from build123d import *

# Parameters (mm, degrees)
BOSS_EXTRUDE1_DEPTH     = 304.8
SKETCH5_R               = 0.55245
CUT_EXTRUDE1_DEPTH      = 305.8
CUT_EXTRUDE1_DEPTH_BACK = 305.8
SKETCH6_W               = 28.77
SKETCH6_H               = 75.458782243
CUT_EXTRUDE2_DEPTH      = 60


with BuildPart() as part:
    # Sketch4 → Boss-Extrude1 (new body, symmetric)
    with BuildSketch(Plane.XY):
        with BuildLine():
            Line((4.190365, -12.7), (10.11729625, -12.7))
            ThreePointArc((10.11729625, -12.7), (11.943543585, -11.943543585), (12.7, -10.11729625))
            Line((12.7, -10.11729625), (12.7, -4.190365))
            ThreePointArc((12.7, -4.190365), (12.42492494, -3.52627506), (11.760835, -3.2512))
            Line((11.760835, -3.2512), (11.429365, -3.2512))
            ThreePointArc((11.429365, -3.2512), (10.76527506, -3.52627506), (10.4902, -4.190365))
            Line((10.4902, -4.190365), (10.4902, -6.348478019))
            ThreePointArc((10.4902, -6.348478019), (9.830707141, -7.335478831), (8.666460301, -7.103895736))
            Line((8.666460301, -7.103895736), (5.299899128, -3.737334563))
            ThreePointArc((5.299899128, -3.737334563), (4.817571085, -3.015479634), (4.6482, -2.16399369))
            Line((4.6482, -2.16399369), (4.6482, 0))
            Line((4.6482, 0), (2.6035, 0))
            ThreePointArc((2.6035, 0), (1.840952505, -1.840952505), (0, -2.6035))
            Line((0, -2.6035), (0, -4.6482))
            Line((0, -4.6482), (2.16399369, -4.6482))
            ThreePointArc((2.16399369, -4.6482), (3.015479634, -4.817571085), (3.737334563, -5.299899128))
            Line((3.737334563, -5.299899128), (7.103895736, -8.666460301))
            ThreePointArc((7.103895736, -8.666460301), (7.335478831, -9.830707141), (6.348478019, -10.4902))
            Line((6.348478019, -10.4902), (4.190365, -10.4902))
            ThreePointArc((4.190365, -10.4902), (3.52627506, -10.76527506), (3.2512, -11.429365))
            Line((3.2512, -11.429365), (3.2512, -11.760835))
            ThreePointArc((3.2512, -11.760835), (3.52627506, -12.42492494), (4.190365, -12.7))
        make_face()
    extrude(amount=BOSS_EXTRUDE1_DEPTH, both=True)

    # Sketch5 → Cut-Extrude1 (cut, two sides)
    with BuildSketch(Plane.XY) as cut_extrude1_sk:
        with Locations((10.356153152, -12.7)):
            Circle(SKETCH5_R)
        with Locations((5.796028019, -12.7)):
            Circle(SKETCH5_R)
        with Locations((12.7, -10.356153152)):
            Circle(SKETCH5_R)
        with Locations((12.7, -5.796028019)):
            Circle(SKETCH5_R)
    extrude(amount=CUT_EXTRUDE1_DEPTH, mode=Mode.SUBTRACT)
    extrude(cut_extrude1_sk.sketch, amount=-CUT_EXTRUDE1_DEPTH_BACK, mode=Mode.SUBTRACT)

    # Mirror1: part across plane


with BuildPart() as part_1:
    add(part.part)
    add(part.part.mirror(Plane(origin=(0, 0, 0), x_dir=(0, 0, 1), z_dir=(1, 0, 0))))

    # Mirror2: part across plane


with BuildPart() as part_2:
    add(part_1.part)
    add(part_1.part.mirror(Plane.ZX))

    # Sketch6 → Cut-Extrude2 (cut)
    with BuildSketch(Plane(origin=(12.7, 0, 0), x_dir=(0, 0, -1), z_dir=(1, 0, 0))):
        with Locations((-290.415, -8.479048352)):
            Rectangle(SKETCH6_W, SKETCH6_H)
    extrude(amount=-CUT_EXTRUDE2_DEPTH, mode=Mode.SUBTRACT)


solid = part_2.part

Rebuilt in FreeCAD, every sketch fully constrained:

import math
import FreeCAD as App
import Part
import Sketcher

V = App.Vector
Q = App.Units.Quantity

doc = App.newDocument("Part")
body = doc.addObject("PartDesign::Body", "Body")

# Sketch on XY plane
sketch1 = body.newObject("Sketcher::SketchObject", "Sketch")
sketch1.AttachmentSupport = (doc.getObject("XY_Plane"), [""])
sketch1.MapMode = "FlatFace"
sketch1.addGeometry(Part.LineSegment(V(4.190365, -12.7, 0), V(10.117296, -12.7, 0)), False)
sketch1.addGeometry(Part.ArcOfCircle(Part.Circle(V(10.117296, -10.117296, 0), V(0, 0, 1), 2.582704), math.radians(-90), math.radians(0)), False)
sketch1.addGeometry(Part.LineSegment(V(12.7, -10.117296, 0), V(12.7, -4.190365, 0)), False)
sketch1.addGeometry(Part.ArcOfCircle(Part.Circle(V(11.760835, -4.190365, 0), V(0, 0, 1), 0.939165), math.radians(0), math.radians(90)), False)
sketch1.addGeometry(Part.LineSegment(V(11.760835, -3.2512, 0), V(11.429365, -3.2512, 0)), False)
sketch1.addGeometry(Part.ArcOfCircle(Part.Circle(V(11.429365, -4.190365, 0), V(0, 0, 1), 0.939165), math.radians(90), math.radians(180)), False)
sketch1.addGeometry(Part.LineSegment(V(10.4902, -4.190365, 0), V(10.4902, -6.348478, 0)), False)
sketch1.addGeometry(Part.ArcOfCircle(Part.Circle(V(9.421878, -6.348478, 0), V(0, 0, 1), 1.068322), math.radians(-135), math.radians(0)), False)
sketch1.addGeometry(Part.LineSegment(V(8.66646, -7.103896, 0), V(5.299899, -3.737335, 0)), False)
sketch1.addGeometry(Part.ArcOfCircle(Part.Circle(V(6.87324, -2.163994, 0), V(0, 0, 1), 2.22504), math.radians(-180), math.radians(-135)), False)
sketch1.addGeometry(Part.LineSegment(V(4.6482, -2.163994, 0), V(4.6482, 0, 0)), False)
sketch1.addGeometry(Part.LineSegment(V(4.6482, 0, 0), V(2.6035, 0, 0)), False)
sketch1.addGeometry(Part.ArcOfCircle(Part.Circle(V(0, 0, 0), V(0, 0, 1), 2.6035), math.radians(-90), math.radians(0)), False)
sketch1.addGeometry(Part.LineSegment(V(0, -2.6035, 0), V(0, -4.6482, 0)), False)
sketch1.addGeometry(Part.LineSegment(V(0, -4.6482, 0), V(2.163994, -4.6482, 0)), False)
sketch1.addGeometry(Part.ArcOfCircle(Part.Circle(V(2.163994, -6.87324, 0), V(0, 0, 1), 2.22504), math.radians(45), math.radians(90)), False)
sketch1.addGeometry(Part.LineSegment(V(3.737335, -5.299899, 0), V(7.103896, -8.66646, 0)), False)
sketch1.addGeometry(Part.ArcOfCircle(Part.Circle(V(6.348478, -9.421878, 0), V(0, 0, 1), 1.068322), math.radians(-90), math.radians(45)), False)
sketch1.addGeometry(Part.LineSegment(V(6.348478, -10.4902, 0), V(4.190365, -10.4902, 0)), False)
sketch1.addGeometry(Part.ArcOfCircle(Part.Circle(V(4.190365, -11.429365, 0), V(0, 0, 1), 0.939165), math.radians(90), math.radians(180)), False)
sketch1.addGeometry(Part.LineSegment(V(3.2512, -11.429365, 0), V(3.2512, -11.760835, 0)), False)
sketch1.addGeometry(Part.ArcOfCircle(Part.Circle(V(4.190365, -11.760835, 0), V(0, 0, 1), 0.939165), math.radians(-180), math.radians(-90)), False)
sketch1.addConstraint(Sketcher.Constraint("Tangent", 0, 2, 1, 1))
sketch1.addConstraint(Sketcher.Constraint("Tangent", 1, 2, 2, 1))
sketch1.addConstraint(Sketcher.Constraint("Tangent", 2, 2, 3, 1))
sketch1.addConstraint(Sketcher.Constraint("Tangent", 3, 2, 4, 1))
sketch1.addConstraint(Sketcher.Constraint("Tangent", 4, 2, 5, 1))
sketch1.addConstraint(Sketcher.Constraint("Tangent", 5, 2, 6, 1))
sketch1.addConstraint(Sketcher.Constraint("Tangent", 6, 2, 7, 2))
sketch1.addConstraint(Sketcher.Constraint("Tangent", 7, 1, 8, 1))
sketch1.addConstraint(Sketcher.Constraint("Tangent", 8, 2, 9, 2))
sketch1.addConstraint(Sketcher.Constraint("Tangent", 9, 1, 10, 1))
sketch1.addConstraint(Sketcher.Constraint("Coincident", 10, 2, 11, 1))
sketch1.addConstraint(Sketcher.Constraint("Coincident", 11, 2, 12, 2))
sketch1.addConstraint(Sketcher.Constraint("Coincident", 12, 1, 13, 1))
sketch1.addConstraint(Sketcher.Constraint("Coincident", 13, 2, 14, 1))
sketch1.addConstraint(Sketcher.Constraint("Tangent", 14, 2, 15, 2))
sketch1.addConstraint(Sketcher.Constraint("Tangent", 15, 1, 16, 1))
sketch1.addConstraint(Sketcher.Constraint("Tangent", 16, 2, 17, 2))
sketch1.addConstraint(Sketcher.Constraint("Tangent", 17, 1, 18, 1))
sketch1.addConstraint(Sketcher.Constraint("Tangent", 18, 2, 19, 1))
sketch1.addConstraint(Sketcher.Constraint("Tangent", 19, 2, 20, 1))
sketch1.addConstraint(Sketcher.Constraint("Tangent", 20, 2, 21, 1))
sketch1.addConstraint(Sketcher.Constraint("Tangent", 21, 2, 0, 1))
sketch1.addConstraint(Sketcher.Constraint("Horizontal", 0))
sketch1.addConstraint(Sketcher.Constraint("Vertical", 2))
sketch1.addConstraint(Sketcher.Constraint("Horizontal", 4))
sketch1.addConstraint(Sketcher.Constraint("Vertical", 6))
sketch1.addConstraint(Sketcher.Constraint("Vertical", 10))
sketch1.addConstraint(Sketcher.Constraint("Horizontal", 11))
sketch1.addConstraint(Sketcher.Constraint("Vertical", 13))
sketch1.addConstraint(Sketcher.Constraint("Horizontal", 14))
sketch1.addConstraint(Sketcher.Constraint("Horizontal", 18))
sketch1.addConstraint(Sketcher.Constraint("Vertical", 20))
sketch1.addConstraint(Sketcher.Constraint("Coincident", 12, 3, -1, 1))
sketch1.addConstraint(Sketcher.Constraint("Equal", 3, 5))
sketch1.addConstraint(Sketcher.Constraint("Equal", 9, 15))
sketch1.addConstraint(Sketcher.Constraint("Equal", 7, 17))
sketch1.addConstraint(Sketcher.Constraint("Equal", 5, 19))
sketch1.addConstraint(Sketcher.Constraint("Equal", 19, 21))
sketch1.addConstraint(Sketcher.Constraint("PointOnObject", 10, 2, -1))
sketch1.addConstraint(Sketcher.Constraint("PointOnObject", 12, 1, -2))
sketch1.addConstraint(Sketcher.Constraint("Parallel", 8, 16))
sketch1.addConstraint(Sketcher.Constraint("Equal", 0, 2))
sketch1.addConstraint(Sketcher.Constraint("Equal", 18, 6))
sketch1.addConstraint(Sketcher.Constraint("Equal", 14, 10))
sketch1.addConstraint(Sketcher.Constraint("Equal", 11, 13))
sketch1.addConstraint(Sketcher.Constraint("Equal", 4, 20))
sketch1.addConstraint(Sketcher.Constraint("Equal", 8, 16))
sketch1.addConstraint(Sketcher.Constraint("DistanceY", 0, 2, -1, 1, Q("12.7 mm")))
sketch1.addConstraint(Sketcher.Constraint("Radius", 12, Q("2.6035 mm")))
sketch1.addConstraint(Sketcher.Constraint("Radius", 7, Q("1.068322 mm")))
sketch1.addConstraint(Sketcher.Constraint("Radius", 9, Q("2.22504 mm")))
sketch1.addConstraint(Sketcher.Constraint("DistanceX", 11, 2, 11, 1, Q("2.0447 mm")))
sketch1.addConstraint(Sketcher.Constraint("Radius", 1, Q("2.582704 mm")))
sketch1.addConstraint(Sketcher.Constraint("Radius", 3, Q("0.939165 mm")))
sketch1.addConstraint(Sketcher.Constraint("DistanceX", 9, 1, 5, 2, Q("5.842 mm")))
sketch1.addConstraint(Sketcher.Constraint("DistanceX", 0, 1, 0, 2, Q("5.926931 mm")))
sketch1.addConstraint(Sketcher.Constraint("DistanceX", 17, 3, 7, 3, Q("3.0734 mm")))
pad1 = body.newObject("PartDesign::Pad", "Pad")
pad1.Profile = sketch1
pad1.Length = 609.6
pad1.Midplane = True

# Sketch on XY plane
sketch2 = body.newObject("Sketcher::SketchObject", "Sketch001")
sketch2.AttachmentSupport = (doc.getObject("XY_Plane"), [""])
sketch2.MapMode = "FlatFace"
sketch2.addGeometry(Part.Circle(V(10.356153, -12.7, 0), V(0, 0, 1), 0.55245), False)
sketch2.addGeometry(Part.Circle(V(5.796028, -12.7, 0), V(0, 0, 1), 0.55245), False)
sketch2.addGeometry(Part.Circle(V(12.7, -10.356153, 0), V(0, 0, 1), 0.55245), False)
sketch2.addGeometry(Part.Circle(V(12.7, -5.796028, 0), V(0, 0, 1), 0.55245), False)
sketch2.addConstraint(Sketcher.Constraint("Equal", 0, 1))
sketch2.addConstraint(Sketcher.Constraint("Equal", 1, 2))
sketch2.addConstraint(Sketcher.Constraint("Equal", 2, 3))
sketch2.addConstraint(Sketcher.Constraint("Horizontal", 0, 3, 1, 3))
sketch2.addConstraint(Sketcher.Constraint("Vertical", 2, 3, 3, 3))
sketch2.addConstraint(Sketcher.Constraint("Diameter", 0, Q("1.1049 mm")))
sketch2.addConstraint(Sketcher.Constraint("DistanceY", 0, 3, -1, 1, Q("12.7 mm")))
sketch2.addConstraint(Sketcher.Constraint("DistanceX", -1, 1, 2, 3, Q("12.7 mm")))
sketch2.addConstraint(Sketcher.Constraint("DistanceX", -1, 1, 1, 3, Q("5.796028 mm")))
sketch2.addConstraint(Sketcher.Constraint("DistanceY", 3, 3, -1, 1, Q("5.796028 mm")))
sketch2.addConstraint(Sketcher.Constraint("DistanceX", -1, 1, 0, 3, Q("10.356153 mm")))
sketch2.addConstraint(Sketcher.Constraint("DistanceY", 2, 3, -1, 1, Q("10.356153 mm")))
pocket1 = body.newObject("PartDesign::Pocket", "Pocket")
pocket1.Profile = sketch2
pocket1.Type = "ThroughAll"
pocket1.Midplane = True
body2 = doc.addObject("PartDesign::Body", "Body001")
doc.recompute()

body2.BaseFeature = body
doc.recompute()

mirroring = doc.addObject("Part::Mirroring", "Mirroring")
mirroring.Source = body
mirroring.Base = V(0, 0, 0)
mirroring.Normal = V(1, 0, 0)
body3 = doc.addObject("PartDesign::Body", "Body002")
body3.BaseFeature = mirroring
boolean = body2.newObject("PartDesign::Boolean", "Boolean")
boolean.Type = "Fuse"
boolean.addObjects([body3])
doc.recompute()
body4 = doc.addObject("PartDesign::Body", "Body003")
doc.recompute()

body4.BaseFeature = body2
doc.recompute()

mirroring2 = doc.addObject("Part::Mirroring", "Mirroring001")
mirroring2.Source = body2
mirroring2.Base = V(0, 0, 0)
mirroring2.Normal = V(0, 1, 0)
body5 = doc.addObject("PartDesign::Body", "Body004")
body5.BaseFeature = mirroring2
boolean2 = body4.newObject("PartDesign::Boolean", "Boolean001")
boolean2.Type = "Fuse"
boolean2.addObjects([body5])
doc.recompute()

# Sketch on YZ plane
sketch3 = body4.newObject("Sketcher::SketchObject", "Sketch002")
sketch3.AttachmentSupport = (doc.getObject("YZ_Plane003"), [""])
sketch3.MapMode = "FlatFace"
sketch3.AttachmentOffset = App.Placement(V(0, 0, 12.7), App.Rotation())
sketch3.addGeometry(Part.LineSegment(V(29.250343, 304.8, 0), V(-46.208439, 304.8, 0)), False)
sketch3.addGeometry(Part.LineSegment(V(-46.208439, 304.8, 0), V(-46.208439, 276.03, 0)), False)
sketch3.addGeometry(Part.LineSegment(V(-46.208439, 276.03, 0), V(29.250343, 276.03, 0)), False)
sketch3.addGeometry(Part.LineSegment(V(29.250343, 276.03, 0), V(29.250343, 304.8, 0)), False)
sketch3.addConstraint(Sketcher.Constraint("Coincident", 0, 2, 1, 1))
sketch3.addConstraint(Sketcher.Constraint("Coincident", 1, 2, 2, 1))
sketch3.addConstraint(Sketcher.Constraint("Coincident", 2, 2, 3, 1))
sketch3.addConstraint(Sketcher.Constraint("Coincident", 3, 2, 0, 1))
sketch3.addConstraint(Sketcher.Constraint("Horizontal", 0))
sketch3.addConstraint(Sketcher.Constraint("Vertical", 1))
sketch3.addConstraint(Sketcher.Constraint("Horizontal", 2))
sketch3.addConstraint(Sketcher.Constraint("Vertical", 3))
sketch3.addConstraint(Sketcher.Constraint("DistanceY", 1, 2, 1, 1, Q("28.77 mm")))
sketch3.addConstraint(Sketcher.Constraint("DistanceY", -1, 1, 0, 2, Q("304.8 mm")))
sketch3.addConstraint(Sketcher.Constraint("DistanceX", 0, 2, 0, 1, Q("75.458782 mm")))
sketch3.addConstraint(Sketcher.Constraint("DistanceX", 0, 2, -1, 1, Q("46.208439 mm")))
pocket2 = body4.newObject("PartDesign::Pocket", "Pocket001")
pocket2.Profile = sketch3
pocket2.Length = 60
mirroring.Visibility = False
mirroring2.Visibility = False

doc.recompute()
